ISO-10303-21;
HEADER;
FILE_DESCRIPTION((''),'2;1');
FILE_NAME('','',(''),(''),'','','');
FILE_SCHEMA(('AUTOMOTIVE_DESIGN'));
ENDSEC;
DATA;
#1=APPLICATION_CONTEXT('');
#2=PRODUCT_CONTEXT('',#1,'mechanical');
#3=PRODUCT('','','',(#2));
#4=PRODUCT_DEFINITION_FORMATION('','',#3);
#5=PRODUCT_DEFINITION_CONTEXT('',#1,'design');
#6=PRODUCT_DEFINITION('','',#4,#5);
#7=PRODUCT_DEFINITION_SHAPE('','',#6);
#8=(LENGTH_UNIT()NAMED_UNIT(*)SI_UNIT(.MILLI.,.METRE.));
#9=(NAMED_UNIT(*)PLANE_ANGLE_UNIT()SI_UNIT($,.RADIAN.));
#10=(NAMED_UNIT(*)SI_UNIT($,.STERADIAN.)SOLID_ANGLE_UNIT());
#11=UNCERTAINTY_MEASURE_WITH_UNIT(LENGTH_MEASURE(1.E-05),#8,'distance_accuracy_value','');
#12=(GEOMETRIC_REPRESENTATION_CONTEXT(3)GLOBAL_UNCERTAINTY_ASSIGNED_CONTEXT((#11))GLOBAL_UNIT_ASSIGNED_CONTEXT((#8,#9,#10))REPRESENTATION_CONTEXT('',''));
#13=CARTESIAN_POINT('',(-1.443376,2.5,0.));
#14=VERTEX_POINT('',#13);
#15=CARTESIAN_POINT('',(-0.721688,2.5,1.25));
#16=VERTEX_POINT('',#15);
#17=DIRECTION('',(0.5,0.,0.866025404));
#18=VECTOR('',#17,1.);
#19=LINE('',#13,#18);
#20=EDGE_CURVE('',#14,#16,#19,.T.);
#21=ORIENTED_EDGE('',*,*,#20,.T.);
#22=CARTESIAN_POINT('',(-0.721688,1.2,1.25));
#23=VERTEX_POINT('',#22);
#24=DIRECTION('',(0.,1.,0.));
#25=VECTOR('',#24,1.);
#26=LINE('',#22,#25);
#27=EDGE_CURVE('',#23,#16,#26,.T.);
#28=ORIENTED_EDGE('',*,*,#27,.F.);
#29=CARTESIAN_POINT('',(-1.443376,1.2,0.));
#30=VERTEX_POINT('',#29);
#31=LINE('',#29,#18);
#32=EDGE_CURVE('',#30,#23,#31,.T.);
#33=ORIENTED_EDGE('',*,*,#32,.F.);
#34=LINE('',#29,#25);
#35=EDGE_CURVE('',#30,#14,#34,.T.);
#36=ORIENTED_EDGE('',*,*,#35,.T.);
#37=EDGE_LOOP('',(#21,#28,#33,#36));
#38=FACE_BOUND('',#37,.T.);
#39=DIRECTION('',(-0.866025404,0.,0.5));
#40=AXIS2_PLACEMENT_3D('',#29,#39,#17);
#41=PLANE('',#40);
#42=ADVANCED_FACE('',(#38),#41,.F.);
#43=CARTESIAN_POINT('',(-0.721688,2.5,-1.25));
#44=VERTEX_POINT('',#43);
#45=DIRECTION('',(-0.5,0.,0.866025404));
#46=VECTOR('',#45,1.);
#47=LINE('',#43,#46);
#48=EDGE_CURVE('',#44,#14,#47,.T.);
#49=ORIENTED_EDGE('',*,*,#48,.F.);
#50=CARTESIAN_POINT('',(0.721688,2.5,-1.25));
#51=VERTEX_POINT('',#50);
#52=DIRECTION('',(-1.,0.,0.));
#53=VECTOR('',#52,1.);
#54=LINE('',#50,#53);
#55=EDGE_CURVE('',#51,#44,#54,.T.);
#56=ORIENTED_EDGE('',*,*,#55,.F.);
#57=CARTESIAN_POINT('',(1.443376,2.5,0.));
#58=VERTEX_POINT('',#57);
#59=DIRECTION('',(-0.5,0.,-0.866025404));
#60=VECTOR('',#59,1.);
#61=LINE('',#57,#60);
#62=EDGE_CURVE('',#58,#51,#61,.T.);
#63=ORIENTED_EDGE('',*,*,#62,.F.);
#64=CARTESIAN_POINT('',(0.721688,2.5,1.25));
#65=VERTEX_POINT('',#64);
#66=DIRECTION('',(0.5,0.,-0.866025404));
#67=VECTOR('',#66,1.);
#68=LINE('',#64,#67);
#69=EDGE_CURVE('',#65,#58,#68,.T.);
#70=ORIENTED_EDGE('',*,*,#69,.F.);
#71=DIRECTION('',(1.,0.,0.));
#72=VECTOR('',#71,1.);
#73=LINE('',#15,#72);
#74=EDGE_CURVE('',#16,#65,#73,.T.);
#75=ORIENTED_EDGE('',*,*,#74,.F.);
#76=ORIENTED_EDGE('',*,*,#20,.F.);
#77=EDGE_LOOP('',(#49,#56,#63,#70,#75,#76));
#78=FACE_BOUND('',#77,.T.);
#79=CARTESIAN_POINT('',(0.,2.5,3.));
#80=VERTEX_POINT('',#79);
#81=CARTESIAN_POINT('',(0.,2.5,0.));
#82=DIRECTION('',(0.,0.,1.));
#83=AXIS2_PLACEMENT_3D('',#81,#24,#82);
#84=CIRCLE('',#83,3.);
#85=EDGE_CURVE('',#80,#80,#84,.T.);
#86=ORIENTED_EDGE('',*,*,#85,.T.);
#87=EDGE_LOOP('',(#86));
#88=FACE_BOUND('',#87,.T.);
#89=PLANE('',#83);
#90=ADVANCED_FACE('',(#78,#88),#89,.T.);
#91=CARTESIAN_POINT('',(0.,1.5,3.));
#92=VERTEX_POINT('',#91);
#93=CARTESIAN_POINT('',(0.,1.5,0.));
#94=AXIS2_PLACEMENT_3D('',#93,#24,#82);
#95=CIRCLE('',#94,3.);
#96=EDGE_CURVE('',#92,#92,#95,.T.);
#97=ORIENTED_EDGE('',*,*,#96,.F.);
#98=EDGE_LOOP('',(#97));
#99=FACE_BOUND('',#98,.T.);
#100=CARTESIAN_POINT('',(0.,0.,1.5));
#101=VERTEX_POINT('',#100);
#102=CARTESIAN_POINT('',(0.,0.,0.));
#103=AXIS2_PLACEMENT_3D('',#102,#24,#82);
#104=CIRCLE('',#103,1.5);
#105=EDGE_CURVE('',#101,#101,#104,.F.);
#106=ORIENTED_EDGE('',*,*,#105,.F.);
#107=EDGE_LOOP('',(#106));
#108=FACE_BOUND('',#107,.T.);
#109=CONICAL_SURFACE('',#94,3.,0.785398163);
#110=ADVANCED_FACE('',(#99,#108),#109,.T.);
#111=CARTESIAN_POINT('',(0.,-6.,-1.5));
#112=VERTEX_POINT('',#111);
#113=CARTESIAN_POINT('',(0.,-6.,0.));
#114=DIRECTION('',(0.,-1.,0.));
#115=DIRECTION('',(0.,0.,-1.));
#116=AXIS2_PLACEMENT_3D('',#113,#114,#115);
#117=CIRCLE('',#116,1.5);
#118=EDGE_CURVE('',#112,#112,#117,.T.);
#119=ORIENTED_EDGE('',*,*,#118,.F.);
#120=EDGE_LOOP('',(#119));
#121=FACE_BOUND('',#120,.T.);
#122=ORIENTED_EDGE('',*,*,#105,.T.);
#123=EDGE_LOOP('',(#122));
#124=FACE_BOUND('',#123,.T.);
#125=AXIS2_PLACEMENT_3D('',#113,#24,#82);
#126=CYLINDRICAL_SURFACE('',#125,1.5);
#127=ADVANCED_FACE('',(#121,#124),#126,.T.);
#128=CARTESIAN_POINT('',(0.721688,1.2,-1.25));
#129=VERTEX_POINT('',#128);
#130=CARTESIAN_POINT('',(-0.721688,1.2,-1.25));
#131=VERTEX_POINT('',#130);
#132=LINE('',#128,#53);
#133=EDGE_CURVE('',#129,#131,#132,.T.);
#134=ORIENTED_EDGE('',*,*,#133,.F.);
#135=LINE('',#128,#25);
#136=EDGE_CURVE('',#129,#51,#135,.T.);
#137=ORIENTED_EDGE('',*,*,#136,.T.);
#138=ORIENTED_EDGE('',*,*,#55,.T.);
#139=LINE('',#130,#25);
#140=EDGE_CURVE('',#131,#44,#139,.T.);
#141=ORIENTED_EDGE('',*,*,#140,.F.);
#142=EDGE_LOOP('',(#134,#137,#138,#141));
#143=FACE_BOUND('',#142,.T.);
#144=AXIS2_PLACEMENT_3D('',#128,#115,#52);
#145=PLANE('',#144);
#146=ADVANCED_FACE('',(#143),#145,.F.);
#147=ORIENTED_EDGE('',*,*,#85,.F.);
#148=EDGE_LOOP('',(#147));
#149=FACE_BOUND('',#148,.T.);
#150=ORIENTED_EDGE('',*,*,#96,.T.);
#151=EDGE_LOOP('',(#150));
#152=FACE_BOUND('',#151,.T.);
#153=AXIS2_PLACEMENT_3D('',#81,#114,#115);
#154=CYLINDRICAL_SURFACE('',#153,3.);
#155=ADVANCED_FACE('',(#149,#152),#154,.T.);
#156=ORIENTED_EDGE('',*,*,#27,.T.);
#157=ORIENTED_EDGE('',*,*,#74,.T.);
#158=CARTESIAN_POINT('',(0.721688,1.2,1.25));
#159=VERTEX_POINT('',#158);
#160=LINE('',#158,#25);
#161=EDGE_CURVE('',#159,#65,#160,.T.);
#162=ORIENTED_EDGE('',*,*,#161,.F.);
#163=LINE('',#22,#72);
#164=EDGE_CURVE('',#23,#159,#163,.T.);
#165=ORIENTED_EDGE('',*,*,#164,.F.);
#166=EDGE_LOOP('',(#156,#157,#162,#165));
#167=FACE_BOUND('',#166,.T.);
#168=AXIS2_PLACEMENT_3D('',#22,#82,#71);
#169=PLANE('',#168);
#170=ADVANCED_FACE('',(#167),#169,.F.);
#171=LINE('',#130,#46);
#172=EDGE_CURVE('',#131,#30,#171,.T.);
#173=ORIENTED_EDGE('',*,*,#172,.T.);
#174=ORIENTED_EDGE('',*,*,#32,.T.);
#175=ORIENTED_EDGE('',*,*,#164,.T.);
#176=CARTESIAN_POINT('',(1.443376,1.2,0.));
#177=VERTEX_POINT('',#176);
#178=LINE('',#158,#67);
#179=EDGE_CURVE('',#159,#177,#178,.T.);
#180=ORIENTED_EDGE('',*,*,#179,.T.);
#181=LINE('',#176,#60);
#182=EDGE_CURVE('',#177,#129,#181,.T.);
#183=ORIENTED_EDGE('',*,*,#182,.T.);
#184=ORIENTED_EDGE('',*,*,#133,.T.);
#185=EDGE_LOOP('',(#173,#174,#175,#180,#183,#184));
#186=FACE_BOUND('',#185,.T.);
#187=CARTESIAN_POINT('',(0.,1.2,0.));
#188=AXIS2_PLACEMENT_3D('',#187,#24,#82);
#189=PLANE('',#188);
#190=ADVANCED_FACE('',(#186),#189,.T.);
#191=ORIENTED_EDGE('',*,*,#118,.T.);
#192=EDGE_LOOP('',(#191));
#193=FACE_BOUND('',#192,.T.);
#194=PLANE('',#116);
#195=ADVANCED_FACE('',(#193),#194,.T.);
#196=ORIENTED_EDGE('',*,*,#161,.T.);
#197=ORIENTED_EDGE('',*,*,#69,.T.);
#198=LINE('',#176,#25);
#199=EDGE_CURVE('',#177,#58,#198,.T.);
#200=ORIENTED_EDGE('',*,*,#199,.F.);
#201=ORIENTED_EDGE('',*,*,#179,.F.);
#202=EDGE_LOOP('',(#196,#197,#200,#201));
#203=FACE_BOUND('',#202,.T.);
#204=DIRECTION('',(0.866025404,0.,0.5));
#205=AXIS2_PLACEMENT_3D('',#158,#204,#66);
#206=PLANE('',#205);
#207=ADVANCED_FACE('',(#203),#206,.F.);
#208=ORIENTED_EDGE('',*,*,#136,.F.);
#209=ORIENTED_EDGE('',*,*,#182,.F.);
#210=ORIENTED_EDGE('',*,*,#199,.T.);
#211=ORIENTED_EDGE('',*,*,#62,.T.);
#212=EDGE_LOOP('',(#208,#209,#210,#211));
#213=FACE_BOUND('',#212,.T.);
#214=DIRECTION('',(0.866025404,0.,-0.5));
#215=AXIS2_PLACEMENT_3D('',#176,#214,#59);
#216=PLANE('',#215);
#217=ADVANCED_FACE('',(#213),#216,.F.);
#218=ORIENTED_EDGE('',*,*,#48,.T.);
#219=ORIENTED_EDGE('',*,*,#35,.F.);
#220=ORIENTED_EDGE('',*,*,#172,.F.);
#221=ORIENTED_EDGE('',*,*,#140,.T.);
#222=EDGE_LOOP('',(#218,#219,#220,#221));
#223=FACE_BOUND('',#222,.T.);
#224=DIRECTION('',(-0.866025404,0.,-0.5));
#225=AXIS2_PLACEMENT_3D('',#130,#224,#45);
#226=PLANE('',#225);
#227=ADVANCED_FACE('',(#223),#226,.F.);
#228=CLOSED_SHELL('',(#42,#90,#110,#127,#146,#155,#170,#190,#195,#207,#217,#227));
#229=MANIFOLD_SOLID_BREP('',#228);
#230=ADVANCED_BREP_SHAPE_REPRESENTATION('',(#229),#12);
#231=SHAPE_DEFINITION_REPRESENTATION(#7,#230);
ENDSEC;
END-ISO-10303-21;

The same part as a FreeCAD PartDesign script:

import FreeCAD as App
import Part
import Sketcher
Q = App.Units.Quantity


def edges_at(feature, points):
    """Names of the edges that pass closest to the given points."""
    edges = feature.Shape.Edges
    near = lambda p: min(range(len(edges)), key=lambda i: edges[i].distToShape(Part.Vertex(*p))[0])
    return sorted({f"Edge{near(p) + 1}" for p in points})

doc = App.newDocument("Part")
body = doc.addObject("PartDesign::Body", "Body")

# Sketch on XZ plane
sketch1 = body.newObject("Sketcher::SketchObject", "Sketch")
sketch1.AttachmentSupport = (doc.getObject("XZ_Plane"), [""])
sketch1.MapMode = "FlatFace"
sketch1.addGeometry(Part.Circle(App.Vector(0, 0, 0), App.Vector(0, 0, 1), 3), False)
sketch1.addConstraint([
    Sketcher.Constraint("Coincident", 0, 3, -1, 1),
    Sketcher.Constraint("Diameter", 0, Q("6 mm")),
])
pad1 = body.newObject("PartDesign::Pad", "Pad")
pad1.Profile = sketch1
pad1.Length = 2.5
pad1.Reversed = True
doc.recompute()

chamfer = body.newObject("PartDesign::Chamfer", "Chamfer")
chamfer.Base = (pad1, edges_at(pad1, [(-3, 0, 0)]))
chamfer.Size = 1.5

# Sketch on XZ plane
sketch2 = body.newObject("Sketcher::SketchObject", "Sketch001")
sketch2.AttachmentSupport = (doc.getObject("XZ_Plane"), [""])
sketch2.MapMode = "FlatFace"
sketch2.AttachmentOffset = App.Placement(App.Vector(0, 0, -2.5), App.Rotation())
sketch2.addGeometry([
    Part.LineSegment(App.Vector(1.4, 0, 0), App.Vector(0.7, -1.2, 0)),  # 0
    Part.LineSegment(App.Vector(0.7, -1.2, 0), App.Vector(-0.7, -1.2, 0)),  # 1
    Part.LineSegment(App.Vector(-0.7, -1.2, 0), App.Vector(-1.4, 0, 0)),  # 2
    Part.LineSegment(App.Vector(-1.4, 0, 0), App.Vector(-0.7, 1.2, 0)),  # 3
    Part.LineSegment(App.Vector(-0.7, 1.2, 0), App.Vector(0.7, 1.2, 0)),  # 4
    Part.LineSegment(App.Vector(0.7, 1.2, 0), App.Vector(1.4, 0, 0)),  # 5
], False)
sketch2.addConstraint([
    Sketcher.Constraint("Coincident", 0, 2, 1, 1),
    Sketcher.Constraint("Coincident", 1, 2, 2, 1),
    Sketcher.Constraint("Coincident", 2, 2, 3, 1),
    Sketcher.Constraint("Coincident", 3, 2, 4, 1),
    Sketcher.Constraint("Coincident", 4, 2, 5, 1),
    Sketcher.Constraint("Coincident", 5, 2, 0, 1),
    Sketcher.Constraint("Horizontal", 1),
    Sketcher.Constraint("Horizontal", 4),
    Sketcher.Constraint("Symmetric", 0, 2, 3, 2, -1, 1),
    Sketcher.Constraint("Symmetric", 2, 2, 5, 2, -1, 1),
    Sketcher.Constraint("PointOnObject", 2, 2, -1),
    Sketcher.Constraint("Parallel", 2, 5),
    Sketcher.Constraint("Vertical", 1, 2, 3, 2),
    Sketcher.Constraint("Angle", 0, Q("-120 deg")),
    Sketcher.Constraint("DistanceY", 1, 2, 3, 2, Q("2.5 mm")),
    Sketcher.Constraint("DistanceX", 1, 2, 1, 1, Q("1.443376 mm")),
])
pocket1 = body.newObject("PartDesign::Pocket", "Pocket")
pocket1.Profile = sketch2
pocket1.Length = 1.3
pocket1.Reversed = True

# Sketch on XZ plane
sketch3 = body.newObject("Sketcher::SketchObject", "Sketch002")
sketch3.AttachmentSupport = (doc.getObject("XZ_Plane"), [""])
sketch3.MapMode = "FlatFace"
sketch3.addGeometry(Part.Circle(App.Vector(0, 0, 0), App.Vector(0, 0, 1), 1.5), False)
sketch3.addConstraint([
    Sketcher.Constraint("Coincident", 0, 3, -1, 1),
    Sketcher.Constraint("Diameter", 0, Q("3 mm")),
])
pad2 = body.newObject("PartDesign::Pad", "Pad001")
pad2.Profile = sketch3
pad2.Length = 6

doc.recompute()
